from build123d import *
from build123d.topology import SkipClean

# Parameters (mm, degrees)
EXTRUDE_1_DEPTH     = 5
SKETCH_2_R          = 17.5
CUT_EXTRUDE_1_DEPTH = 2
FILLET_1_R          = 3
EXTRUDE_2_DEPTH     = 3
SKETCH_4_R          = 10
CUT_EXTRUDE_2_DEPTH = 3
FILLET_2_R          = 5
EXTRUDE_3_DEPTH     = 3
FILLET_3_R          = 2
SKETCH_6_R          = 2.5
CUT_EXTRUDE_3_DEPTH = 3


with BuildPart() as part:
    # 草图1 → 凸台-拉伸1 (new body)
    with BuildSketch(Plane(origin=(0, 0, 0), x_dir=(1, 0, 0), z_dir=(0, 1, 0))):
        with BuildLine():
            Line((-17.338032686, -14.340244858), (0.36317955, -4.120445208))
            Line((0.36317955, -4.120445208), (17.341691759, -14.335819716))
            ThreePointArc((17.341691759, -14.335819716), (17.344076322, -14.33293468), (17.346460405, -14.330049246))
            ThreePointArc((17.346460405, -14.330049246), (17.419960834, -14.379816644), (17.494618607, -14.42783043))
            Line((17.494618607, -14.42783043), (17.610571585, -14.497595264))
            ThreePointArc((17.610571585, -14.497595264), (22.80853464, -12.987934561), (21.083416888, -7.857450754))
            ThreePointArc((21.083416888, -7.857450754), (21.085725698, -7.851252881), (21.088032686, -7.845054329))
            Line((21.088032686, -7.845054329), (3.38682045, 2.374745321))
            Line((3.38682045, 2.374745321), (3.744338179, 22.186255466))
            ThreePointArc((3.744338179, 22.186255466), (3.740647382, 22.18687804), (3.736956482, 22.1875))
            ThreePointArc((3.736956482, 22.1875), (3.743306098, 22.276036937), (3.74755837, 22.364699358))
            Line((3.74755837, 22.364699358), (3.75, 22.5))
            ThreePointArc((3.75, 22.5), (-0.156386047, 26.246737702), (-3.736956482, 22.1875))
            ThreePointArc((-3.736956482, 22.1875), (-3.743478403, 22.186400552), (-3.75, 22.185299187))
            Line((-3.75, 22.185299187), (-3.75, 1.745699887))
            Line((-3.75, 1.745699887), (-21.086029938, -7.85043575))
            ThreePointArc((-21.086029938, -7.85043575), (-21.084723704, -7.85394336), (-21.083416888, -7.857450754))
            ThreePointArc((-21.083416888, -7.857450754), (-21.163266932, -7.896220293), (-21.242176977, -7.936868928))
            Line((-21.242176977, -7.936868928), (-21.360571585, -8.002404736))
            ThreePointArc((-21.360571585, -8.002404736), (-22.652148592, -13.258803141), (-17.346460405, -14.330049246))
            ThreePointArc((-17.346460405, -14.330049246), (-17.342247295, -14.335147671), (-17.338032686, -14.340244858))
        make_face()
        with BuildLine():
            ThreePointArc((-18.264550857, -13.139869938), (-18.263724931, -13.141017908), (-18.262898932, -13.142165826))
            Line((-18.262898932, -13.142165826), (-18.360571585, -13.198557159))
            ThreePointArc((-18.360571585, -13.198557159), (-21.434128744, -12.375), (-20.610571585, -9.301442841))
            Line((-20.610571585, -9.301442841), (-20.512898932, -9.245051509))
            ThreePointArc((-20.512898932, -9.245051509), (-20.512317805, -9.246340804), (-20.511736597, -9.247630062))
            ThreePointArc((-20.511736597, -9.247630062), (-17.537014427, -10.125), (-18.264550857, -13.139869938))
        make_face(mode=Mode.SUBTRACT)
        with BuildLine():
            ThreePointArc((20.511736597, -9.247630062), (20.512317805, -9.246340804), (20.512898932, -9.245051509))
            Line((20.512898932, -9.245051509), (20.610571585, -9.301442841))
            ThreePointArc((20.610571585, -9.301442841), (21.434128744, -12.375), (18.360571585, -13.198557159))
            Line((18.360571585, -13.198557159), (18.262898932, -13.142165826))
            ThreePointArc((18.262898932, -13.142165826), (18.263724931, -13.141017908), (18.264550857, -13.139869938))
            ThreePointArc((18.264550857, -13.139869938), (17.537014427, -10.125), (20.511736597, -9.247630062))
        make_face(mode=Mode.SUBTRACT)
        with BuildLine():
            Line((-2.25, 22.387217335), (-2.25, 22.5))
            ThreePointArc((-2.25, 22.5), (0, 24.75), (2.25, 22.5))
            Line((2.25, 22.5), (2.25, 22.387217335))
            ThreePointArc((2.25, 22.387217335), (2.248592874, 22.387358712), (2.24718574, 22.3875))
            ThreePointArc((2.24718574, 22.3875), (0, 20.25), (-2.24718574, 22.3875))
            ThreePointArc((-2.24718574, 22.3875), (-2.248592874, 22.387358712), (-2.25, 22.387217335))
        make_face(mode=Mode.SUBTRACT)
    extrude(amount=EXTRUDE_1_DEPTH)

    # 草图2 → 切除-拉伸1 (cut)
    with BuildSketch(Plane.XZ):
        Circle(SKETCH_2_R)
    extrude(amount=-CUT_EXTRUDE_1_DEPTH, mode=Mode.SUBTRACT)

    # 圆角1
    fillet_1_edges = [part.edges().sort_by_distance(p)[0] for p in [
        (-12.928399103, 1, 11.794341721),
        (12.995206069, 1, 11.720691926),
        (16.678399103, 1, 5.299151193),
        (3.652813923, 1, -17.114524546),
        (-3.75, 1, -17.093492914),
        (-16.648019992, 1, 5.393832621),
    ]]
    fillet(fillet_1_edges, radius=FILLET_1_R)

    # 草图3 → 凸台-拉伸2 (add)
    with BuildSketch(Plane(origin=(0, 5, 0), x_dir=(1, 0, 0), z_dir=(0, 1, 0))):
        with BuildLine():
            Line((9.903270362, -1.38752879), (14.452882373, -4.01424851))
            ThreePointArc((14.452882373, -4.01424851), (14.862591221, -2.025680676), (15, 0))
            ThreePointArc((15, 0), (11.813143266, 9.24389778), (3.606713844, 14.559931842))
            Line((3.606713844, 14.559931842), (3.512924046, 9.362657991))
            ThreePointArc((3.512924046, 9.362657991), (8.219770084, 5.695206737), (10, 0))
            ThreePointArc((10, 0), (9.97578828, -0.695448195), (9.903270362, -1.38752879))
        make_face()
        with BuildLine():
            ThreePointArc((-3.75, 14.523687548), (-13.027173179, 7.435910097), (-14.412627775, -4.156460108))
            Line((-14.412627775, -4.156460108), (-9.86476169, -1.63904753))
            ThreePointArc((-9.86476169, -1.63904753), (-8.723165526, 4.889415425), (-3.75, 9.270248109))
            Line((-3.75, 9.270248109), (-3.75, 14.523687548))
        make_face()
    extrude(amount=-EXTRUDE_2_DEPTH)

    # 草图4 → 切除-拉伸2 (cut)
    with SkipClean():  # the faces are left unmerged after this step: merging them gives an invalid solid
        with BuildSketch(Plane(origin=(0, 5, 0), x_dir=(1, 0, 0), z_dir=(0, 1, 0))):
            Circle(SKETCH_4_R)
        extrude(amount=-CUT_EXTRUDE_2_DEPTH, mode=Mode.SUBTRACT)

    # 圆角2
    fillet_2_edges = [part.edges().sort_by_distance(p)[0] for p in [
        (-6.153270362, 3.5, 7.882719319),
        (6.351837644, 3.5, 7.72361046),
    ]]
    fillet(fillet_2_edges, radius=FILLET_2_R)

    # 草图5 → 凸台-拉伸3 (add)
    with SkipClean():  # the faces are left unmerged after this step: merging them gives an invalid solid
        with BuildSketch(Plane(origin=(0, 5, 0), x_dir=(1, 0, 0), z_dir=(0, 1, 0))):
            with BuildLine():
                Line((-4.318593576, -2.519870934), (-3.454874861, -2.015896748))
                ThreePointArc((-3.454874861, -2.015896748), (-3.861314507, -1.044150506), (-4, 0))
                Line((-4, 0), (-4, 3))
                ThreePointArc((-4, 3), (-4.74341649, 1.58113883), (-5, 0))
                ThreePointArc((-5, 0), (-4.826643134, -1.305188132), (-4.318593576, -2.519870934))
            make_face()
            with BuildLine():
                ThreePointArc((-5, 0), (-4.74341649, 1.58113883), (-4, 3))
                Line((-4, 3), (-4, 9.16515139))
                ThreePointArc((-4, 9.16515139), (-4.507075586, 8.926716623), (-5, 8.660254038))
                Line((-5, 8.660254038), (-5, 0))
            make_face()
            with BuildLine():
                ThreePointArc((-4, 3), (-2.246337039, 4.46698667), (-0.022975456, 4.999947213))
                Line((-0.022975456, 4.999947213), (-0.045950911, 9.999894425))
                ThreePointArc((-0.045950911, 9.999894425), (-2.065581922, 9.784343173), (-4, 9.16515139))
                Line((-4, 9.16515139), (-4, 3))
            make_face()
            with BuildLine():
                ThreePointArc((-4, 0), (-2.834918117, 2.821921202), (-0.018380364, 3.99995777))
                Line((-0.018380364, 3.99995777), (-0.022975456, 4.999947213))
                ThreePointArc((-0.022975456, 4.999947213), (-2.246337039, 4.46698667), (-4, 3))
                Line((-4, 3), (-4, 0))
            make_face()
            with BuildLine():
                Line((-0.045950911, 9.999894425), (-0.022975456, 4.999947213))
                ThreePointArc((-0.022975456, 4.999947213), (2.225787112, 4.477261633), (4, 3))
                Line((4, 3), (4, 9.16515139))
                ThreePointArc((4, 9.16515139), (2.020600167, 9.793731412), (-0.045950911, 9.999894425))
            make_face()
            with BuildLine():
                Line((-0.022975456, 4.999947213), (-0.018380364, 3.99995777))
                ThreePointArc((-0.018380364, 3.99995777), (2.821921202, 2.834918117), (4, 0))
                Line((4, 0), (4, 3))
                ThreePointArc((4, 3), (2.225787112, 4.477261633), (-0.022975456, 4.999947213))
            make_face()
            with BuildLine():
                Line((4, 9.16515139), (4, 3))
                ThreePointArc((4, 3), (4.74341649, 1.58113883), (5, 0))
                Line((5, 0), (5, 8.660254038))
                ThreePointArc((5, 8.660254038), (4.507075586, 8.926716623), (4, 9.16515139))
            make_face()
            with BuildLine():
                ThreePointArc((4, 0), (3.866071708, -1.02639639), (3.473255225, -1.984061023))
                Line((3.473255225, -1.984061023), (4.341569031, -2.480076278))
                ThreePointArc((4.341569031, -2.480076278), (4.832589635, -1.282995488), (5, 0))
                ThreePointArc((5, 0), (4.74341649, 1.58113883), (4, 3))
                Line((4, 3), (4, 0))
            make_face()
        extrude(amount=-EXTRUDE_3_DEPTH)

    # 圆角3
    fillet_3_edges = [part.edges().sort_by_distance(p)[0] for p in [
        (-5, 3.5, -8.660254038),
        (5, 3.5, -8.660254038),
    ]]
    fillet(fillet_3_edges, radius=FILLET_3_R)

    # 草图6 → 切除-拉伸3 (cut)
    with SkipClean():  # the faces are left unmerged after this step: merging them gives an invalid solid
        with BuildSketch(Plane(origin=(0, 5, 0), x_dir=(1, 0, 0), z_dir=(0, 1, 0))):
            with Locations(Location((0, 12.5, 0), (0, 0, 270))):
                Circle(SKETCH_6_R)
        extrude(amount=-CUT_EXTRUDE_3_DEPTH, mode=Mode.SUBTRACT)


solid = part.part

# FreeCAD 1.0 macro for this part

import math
import FreeCAD as App
import Part
import Sketcher
Q = App.Units.Quantity


def edges_at(feature, points):
    """Names of the edges that pass closest to the given points."""
    edges = feature.Shape.Edges
    near = lambda p: min(range(len(edges)), key=lambda i: edges[i].distToShape(Part.Vertex(*p))[0])
    return sorted({f"Edge{near(p) + 1}" for p in points})

doc = App.newDocument("Part")
params = doc.addObject("Spreadsheet::Sheet", "Params")
for row, (alias, value) in enumerate([
    ("sketch1_radius", "3.75 mm"),
    ("sketch1_radius2", "3.75 mm"),
    ("sketch1_radius3", "3.750001 mm"),
    ("sketch1_radius4", "3.75 mm"),
    ("sketch1_radius5", "3.75 mm"),
    ("pad1_length", "5 mm"),
    ("sketch2_diameter", "35 mm"),
    ("pocket1_length", "2 mm"),
    ("fillet_radius", "3 mm"),
    ("sketch3_radius", "15 mm"),
    ("sketch3_radius2", "10 mm"),
    ("pad2_length", "3 mm"),
    ("sketch4_diameter", "20 mm"),
    ("pocket2_length", "3 mm"),
    ("fillet2_radius", "5 mm"),
    ("sketch5_radius", "4 mm"),
    ("sketch5_radius2", "5 mm"),
    ("sketch5_radius3", "10 mm"),
    ("pad3_length", "3 mm"),
    ("fillet3_radius", "2 mm"),
    ("sketch6_diameter", "5 mm"),
    ("pocket3_length", "3 mm"),
], start=1):
    params.set(f"A{row}", alias)
    params.set(f"B{row}", "=" + value)
    params.setAlias(f"B{row}", alias)

body = doc.addObject("PartDesign::Body", "Body")

# Sketch on XZ plane
sketch1 = doc.addObject("Sketcher::SketchObject", "Sketch")
body.addObject(sketch1)
sketch1.AttachmentSupport = (doc.XZ_Plane, [""])
sketch1.MapMode = "FlatFace"
sketch1.addGeometry([
    Part.LineSegment(App.Vector(-17.338033, 14.340245, 0), App.Vector(0.36318, 4.120445, 0)),  # 0
    Part.LineSegment(App.Vector(0.36318, 4.120445, 0), App.Vector(17.341692, 14.33582, 0)),  # 1
    Part.ArcOfCircle(Part.Circle(App.Vector(0.024832, 0.020522, 0), App.Vector(0, 0, 1), 22.467785), math.radians(39.560367), math.radians(39.579457)),  # 2
    Part.ArcOfCircle(Part.Circle(App.Vector(19.485572, 11.25, 0), App.Vector(0, 0, 1), 3.75), math.radians(122.067691), math.radians(124.780192)),  # 3
    Part.LineSegment(App.Vector(17.494619, 14.42783, 0), App.Vector(17.610572, 14.497595, 0)),  # 4
    Part.ArcOfCircle(Part.Circle(App.Vector(19.485572, 11.25, 0), App.Vector(0, 0, 1), 3.75), math.radians(-64.780192), math.radians(120)),  # 5
    Part.ArcOfCircle(Part.Circle(App.Vector(0.002388, 0.000891, 0), App.Vector(0, 0, 1), 22.497451), math.radians(20.405927), math.radians(20.439615)),  # 6
    Part.LineSegment(App.Vector(21.088033, 7.845054, 0), App.Vector(3.38682, -2.374745, 0)),  # 7
    Part.LineSegment(App.Vector(3.38682, -2.374745, 0), App.Vector(3.744338, -22.186255, 0)),  # 8
    Part.ArcOfCircle(Part.Circle(App.Vector(-0.000413, 0.002454, 0), App.Vector(0, 0, 1), 22.502488), math.radians(-80.439616), math.radians(-80.420555)),  # 9
    Part.ArcOfCircle(Part.Circle(App.Vector(-0.000001, -22.5, 0), App.Vector(0, 0, 1), 3.750001), math.radians(2.067691), math.radians(4.780192)),  # 10
    Part.LineSegment(App.Vector(3.747558, -22.364699, 0), App.Vector(3.75, -22.5, 0)),  # 11
    Part.ArcOfCircle(Part.Circle(App.Vector(0, -22.5, 0), App.Vector(0, 0, 1), 3.75), math.radians(175.219808), math.radians(360)),  # 12
    Part.ArcOfCircle(Part.Circle(App.Vector(0.000001, 0.00001, 0), App.Vector(0, 0, 1), 22.50001), math.radians(-99.594066), math.radians(-99.560382)),  # 13
    Part.LineSegment(App.Vector(-3.75, -22.185299, 0), App.Vector(-3.75, -1.7457, 0)),  # 14
    Part.LineSegment(App.Vector(-3.75, -1.7457, 0), App.Vector(-21.08603, 7.850436, 0)),  # 15
    Part.ArcOfCircle(Part.Circle(App.Vector(0.063124, -0.023513, 0), App.Vector(0, 0, 1), 22.567361), math.radians(159.560414), math.radians(159.57942)),  # 16
    Part.ArcOfCircle(Part.Circle(App.Vector(-19.485571, 11.25, 0), App.Vector(0, 0, 1), 3.75), math.radians(-117.932309), math.radians(-115.219808)),  # 17
    Part.LineSegment(App.Vector(-21.242177, 7.936869, 0), App.Vector(-21.360572, 8.002405, 0)),  # 18
    Part.ArcOfCircle(Part.Circle(App.Vector(-19.485572, 11.25, 0), App.Vector(0, 0, 1), 3.75), math.radians(55.219808), math.radians(240)),  # 19
    Part.ArcOfCircle(Part.Circle(App.Vector(0.000515, -0.000424, 0), App.Vector(0, 0, 1), 22.500667), math.radians(140.405935), math.radians(140.439619)),  # 20
    Part.ArcOfCircle(Part.Circle(App.Vector(-19.485572, 11.25, 0), App.Vector(0, 0, 1), 2.25), math.radians(-117.134016), math.radians(57.134016)),  # 21
    Part.ArcOfCircle(Part.Circle(App.Vector(-0.150299, 0.108143, 0), App.Vector(0, 0, 1), 22.314838), math.radians(144.260801), math.radians(144.268063)),  # 22
    Part.LineSegment(App.Vector(-18.262899, 13.142166, 0), App.Vector(-18.360572, 13.198557, 0)),  # 23
    Part.ArcOfCircle(Part.Circle(App.Vector(-19.485572, 11.25, 0), App.Vector(0, 0, 1), 2.25), math.radians(60), math.radians(240)),  # 24
    Part.LineSegment(App.Vector(-20.610572, 9.301443, 0), App.Vector(-20.512899, 9.245052, 0)),  # 25
    Part.ArcOfCircle(Part.Circle(App.Vector(-0.03709, 0.016717, 0), App.Vector(0, 0, 1), 22.459317), math.radians(155.731957), math.radians(155.739172)),  # 26
    Part.ArcOfCircle(Part.Circle(App.Vector(19.485572, 11.25, 0), App.Vector(0, 0, 1), 2.25), math.radians(122.865984), math.radians(297.134016)),  # 27
    Part.ArcOfCircle(Part.Circle(App.Vector(0.03709, 0.016717, 0), App.Vector(0, 0, 1), 22.459317), math.radians(24.260828), math.radians(24.268043)),  # 28
    Part.LineSegment(App.Vector(20.512899, 9.245052, 0), App.Vector(20.610572, 9.301443, 0)),  # 29
    Part.ArcOfCircle(Part.Circle(App.Vector(19.485572, 11.25, 0), App.Vector(0, 0, 1), 2.25), math.radians(-60), math.radians(120)),  # 30
    Part.LineSegment(App.Vector(18.360572, 13.198557, 0), App.Vector(18.262899, 13.142166, 0)),  # 31
    Part.ArcOfCircle(Part.Circle(App.Vector(0.150299, 0.108143, 0), App.Vector(0, 0, 1), 22.314838), math.radians(35.731937), math.radians(35.739199)),  # 32
    Part.ArcOfCircle(Part.Circle(App.Vector(-0.011716, -0.116634, 0), App.Vector(0, 0, 1), 22.382779), math.radians(-95.739187), math.radians(-95.731947)),  # 33
    Part.LineSegment(App.Vector(-2.25, -22.387217, 0), App.Vector(-2.25, -22.5, 0)),  # 34
    Part.ArcOfCircle(Part.Circle(App.Vector(0, -22.5, 0), App.Vector(0, 0, 1), 2.25), math.radians(180), math.radians(360)),  # 35
    Part.LineSegment(App.Vector(2.25, -22.5, 0), App.Vector(2.25, -22.387217, 0)),  # 36
    Part.ArcOfCircle(Part.Circle(App.Vector(0.011715, -0.116633, 0), App.Vector(0, 0, 1), 22.38278), math.radians(-84.268053), math.radians(-84.260813)),  # 37
    Part.ArcOfCircle(Part.Circle(App.Vector(0, -22.5, 0), App.Vector(0, 0, 1), 2.25), math.radians(2.865984), math.radians(177.134016)),  # 38
], False)
sketch1.addConstraint([
    Sketcher.Constraint("Coincident", 0, 2, 1, 1),
    Sketcher.Constraint("Coincident", 1, 2, 2, 2),
    Sketcher.Constraint("Coincident", 2, 1, 3, 2),
    Sketcher.Constraint("Coincident", 3, 1, 4, 1),
    Sketcher.Constraint("Coincident", 4, 2, 5, 2),
    Sketcher.Constraint("Coincident", 5, 1, 6, 2),
    Sketcher.Constraint("Coincident", 6, 1, 7, 1),
    Sketcher.Constraint("Coincident", 7, 2, 8, 1),
    Sketcher.Constraint("Coincident", 8, 2, 9, 2),
    Sketcher.Constraint("Coincident", 9, 1, 10, 2),
    Sketcher.Constraint("Coincident", 10, 1, 11, 1),
    Sketcher.Constraint("Coincident", 11, 2, 12, 2),
    Sketcher.Constraint("Coincident", 12, 1, 13, 2),
    Sketcher.Constraint("Coincident", 13, 1, 14, 1),
    Sketcher.Constraint("Coincident", 14, 2, 15, 1),
    Sketcher.Constraint("Coincident", 15, 2, 16, 2),
    Sketcher.Constraint("Coincident", 16, 1, 17, 2),
    Sketcher.Constraint("Coincident", 17, 1, 18, 1),
    Sketcher.Constraint("Coincident", 18, 2, 19, 2),
    Sketcher.Constraint("Coincident", 19, 1, 20, 2),
    Sketcher.Constraint("Coincident", 20, 1, 0, 1),
    Sketcher.Constraint("Coincident", 21, 2, 22, 2),
    Sketcher.Constraint("Coincident", 22, 1, 23, 1),
    Sketcher.Constraint("Coincident", 23, 2, 24, 1),
    Sketcher.Constraint("Coincident", 24, 2, 25, 1),
    Sketcher.Constraint("Coincident", 25, 2, 26, 2),
    Sketcher.Constraint("Coincident", 26, 1, 21, 1),
    Sketcher.Constraint("Coincident", 27, 2, 28, 2),
    Sketcher.Constraint("Coincident", 28, 1, 29, 1),
    Sketcher.Constraint("Coincident", 29, 2, 30, 1),
    Sketcher.Constraint("Coincident", 30, 2, 31, 1),
    Sketcher.Constraint("Coincident", 31, 2, 32, 2),
    Sketcher.Constraint("Coincident", 32, 1, 27, 1),
    Sketcher.Constraint("Coincident", 33, 1, 34, 1),
    Sketcher.Constraint("Coincident", 34, 2, 35, 1),
    Sketcher.Constraint("Coincident", 35, 2, 36, 1),
    Sketcher.Constraint("Coincident", 36, 2, 37, 2),
    Sketcher.Constraint("Coincident", 37, 1, 38, 1),
    Sketcher.Constraint("Coincident", 38, 2, 33, 2),
    Sketcher.Constraint("Vertical", 14),
    Sketcher.Constraint("Vertical", 34),
    Sketcher.Constraint("Vertical", 36),
    Sketcher.Constraint("Coincident", 13, 3, -1, 1),
    Sketcher.Constraint("Coincident", 5, 3, 3, 3),
    Sketcher.Constraint("Coincident", 12, 3, 10, 3),
    Sketcher.Constraint("Coincident", 19, 3, 17, 3),
    Sketcher.Constraint("Coincident", 21, 3, 17, 3),
    Sketcher.Constraint("Coincident", 24, 3, 17, 3),
    Sketcher.Constraint("Coincident", 27, 3, 3, 3),
    Sketcher.Constraint("Coincident", 30, 3, 3, 3),
    Sketcher.Constraint("Coincident", 35, 3, 10, 3),
    Sketcher.Constraint("Coincident", 38, 3, 10, 3),
    Sketcher.Constraint("PointOnObject", 10, 3, -2),
    Sketcher.Constraint("Radius", 3, 3.75),
    Sketcher.Constraint("Radius", 5, 3.75),
    Sketcher.Constraint("Radius", 10, 3.750001),
    Sketcher.Constraint("Radius", 12, 3.75),
    Sketcher.Constraint("Radius", 17, 3.75),
    Sketcher.Constraint("Radius", 19, 3.75),
    Sketcher.Constraint("Radius", 21, 2.25),
    Sketcher.Constraint("Radius", 24, 2.25),
    Sketcher.Constraint("Radius", 27, 2.25),
    Sketcher.Constraint("Radius", 30, 2.25),
    Sketcher.Constraint("Radius", 35, 2.25),
    Sketcher.Constraint("Radius", 38, 2.25),
    Sketcher.Constraint("DistanceY", 10, 3, -1, 1, 22.5),
    Sketcher.Constraint("DistanceY", 11, 2, -1, 1, 22.5),
    Sketcher.Constraint("DistanceY", 34, 2, -1, 1, 22.5),
    Sketcher.Constraint("DistanceY", 35, 2, -1, 1, 22.5),
    Sketcher.Constraint("DistanceY", -1, 1, 3, 3, 11.25),
    Sketcher.Constraint("DistanceY", -1, 1, 17, 3, 11.25),
    Sketcher.Constraint("DistanceX", 13, 1, -1, 1, 3.75),
    Sketcher.Constraint("Radius", 6, 22.497451),
    Sketcher.Constraint("Radius", 9, 22.502488),
    Sketcher.Constraint("Radius", 13, 22.50001),
    Sketcher.Constraint("Radius", 16, 22.567361),
    Sketcher.Constraint("Radius", 22, 22.314838),
    Sketcher.Constraint("Radius", 32, 22.314838),
    Sketcher.Constraint("Radius", 33, 22.382779),
    Sketcher.Constraint("Radius", 37, 22.38278),
    Sketcher.Constraint("DistanceY", 14, 1, 14, 2, 20.439599),
    Sketcher.Constraint("Radius", 2, 22.467785),
    Sketcher.Constraint("Radius", 20, 22.500667),
    Sketcher.Constraint("Radius", 26, 22.459317),
    Sketcher.Constraint("Radius", 28, 22.459317),
    Sketcher.Constraint("Distance", 0, 20.439599),
    Sketcher.Constraint("Distance", 7, 20.439599),
    Sketcher.Constraint("DistanceX", 22, 3, -1, 1, 0.150299),
    Sketcher.Constraint("DistanceX", -1, 1, 32, 3, 0.150299),
    Sketcher.Constraint("DistanceY", 9, 1, -1, 1, 22.1875),
    Sketcher.Constraint("DistanceY", 10, 1, -1, 1, 22.364699),
    Sketcher.Constraint("DistanceX", 22, 1, -1, 1, 18.262899),
    Sketcher.Constraint("DistanceX", 25, 2, -1, 1, 20.512899),
    Sketcher.Constraint("DistanceX", -1, 1, 28, 1, 20.512899),
    Sketcher.Constraint("DistanceX", -1, 1, 31, 2, 18.262899),
    Sketcher.Constraint("DistanceY", 37, 1, -1, 1, 22.3875),
    Sketcher.Constraint("DistanceY", 38, 2, -1, 1, 22.3875),
    Sketcher.Constraint("DistanceX", -1, 1, 2, 3, 0.024832),
    Sketcher.Constraint("DistanceX", -1, 1, 3, 3, 19.485572),
    Sketcher.Constraint("DistanceX", -1, 1, 6, 3, 0.002388),
    Sketcher.Constraint("DistanceY", -1, 1, 6, 3, 0.000891),
    Sketcher.Constraint("DistanceX", 17, 3, -1, 1, 19.485571),
    Sketcher.Constraint("DistanceX", 26, 3, -1, 1, 0.03709),
    Sketcher.Constraint("DistanceX", -1, 1, 28, 3, 0.03709),
    Sketcher.Constraint("DistanceX", -1, 1, 0, 2, 0.36318),
    Sketcher.Constraint("DistanceX", -1, 1, 1, 2, 17.341692),
    Sketcher.Constraint("DistanceY", -1, 1, 1, 2, 14.33582),
    Sketcher.Constraint("DistanceX", -1, 1, 3, 1, 17.494619),
    Sketcher.Constraint("DistanceX", -1, 1, 4, 2, 17.610572),
    Sketcher.Constraint("DistanceX", -1, 1, 7, 2, 3.38682),
    Sketcher.Constraint("DistanceX", -1, 1, 8, 2, 3.744338),
    Sketcher.Constraint("DistanceX", 15, 2, -1, 1, 21.08603),
    Sketcher.Constraint("DistanceY", -1, 1, 16, 1, 7.857451),
    Sketcher.Constraint("DistanceY", -1, 1, 17, 1, 7.936869),
    Sketcher.Constraint("DistanceX", 18, 2, -1, 1, 21.360572),
    Sketcher.Constraint("DistanceX", 19, 1, -1, 1, 17.34646),
    Sketcher.Constraint("DistanceX", 21, 2, -1, 1, 18.264551),
    Sketcher.Constraint("DistanceX", 23, 2, -1, 1, 18.360572),
    Sketcher.Constraint("DistanceX", 24, 2, -1, 1, 20.610572),
    Sketcher.Constraint("DistanceY", -1, 1, 25, 2, 9.245052),
    Sketcher.Constraint("DistanceY", -1, 1, 27, 2, 9.24763),
    Sketcher.Constraint("DistanceX", -1, 1, 29, 2, 20.610572),
    Sketcher.Constraint("DistanceX", -1, 1, 30, 2, 18.360572),
    Sketcher.Constraint("DistanceX", -1, 1, 32, 1, 18.264551),
    Sketcher.Constraint("Distance", 1, 19.814736),
    Sketcher.Constraint("Distance", 8, 19.814736),
    Sketcher.Constraint("DistanceX", 9, 3, -1, 1, 0.000413),
    Sketcher.Constraint("DistanceX", -1, 1, 16, 3, 0.063124),
    Sketcher.Constraint("DistanceX", -1, 1, 20, 3, 0.000515),
    Sketcher.Constraint("DistanceX", 33, 3, -1, 1, 0.011716),
    Sketcher.Constraint("DistanceX", -1, 1, 37, 3, 0.011715),
])
sketch1.setExpression("Constraints[53]", "Params.sketch1_radius")
sketch1.setExpression("Constraints[54]", "Params.sketch1_radius2")
sketch1.setExpression("Constraints[55]", "Params.sketch1_radius3")
sketch1.setExpression("Constraints[56]", "Params.sketch1_radius4")
sketch1.setExpression("Constraints[57]", "Params.sketch1_radius5")
pad1 = doc.addObject("PartDesign::Pad", "Pad")
body.addObject(pad1)
pad1.Profile = sketch1
pad1.setExpression("Length", "Params.pad1_length")
pad1.Reversed = True

# Sketch on XZ plane
sketch2 = doc.addObject("Sketcher::SketchObject", "Sketch001")
body.addObject(sketch2)
sketch2.AttachmentSupport = (doc.XZ_Plane, [""])
sketch2.MapMode = "FlatFace"
sketch2.addGeometry(Part.Circle(App.Vector(0, 0, 0), App.Vector(0, 0, 1), 17.5), False)
sketch2.addConstraint([
    Sketcher.Constraint("Coincident", 0, 3, -1, 1),
    Sketcher.Constraint("Diameter", 0, 35.0),
])
sketch2.setExpression("Constraints[1]", "Params.sketch2_diameter")
pocket1 = doc.addObject("PartDesign::Pocket", "Pocket")
body.addObject(pocket1)
pocket1.Profile = sketch2
pocket1.setExpression("Length", "Params.pocket1_length")
doc.recompute()

fillet = doc.addObject("PartDesign::Fillet", "Fillet")
body.addObject(fillet)
fillet.Base = (pocket1, edges_at(pocket1, [
    (-12.928, 1, 11.794),
    (12.995, 1, 11.721),
    (16.678, 1, 5.299),
    (3.653, 1, -17.115),
    (-3.75, 1, -17.093),
    (-16.648, 1, 5.394),
]))
fillet.setExpression("Radius", "Params.fillet_radius")

# Sketch on XZ plane
sketch3 = doc.addObject("Sketcher::SketchObject", "Sketch002")
body.addObject(sketch3)
sketch3.AttachmentSupport = (doc.XZ_Plane, [""])
sketch3.MapMode = "FlatFace"
sketch3.AttachmentOffset = App.Placement(App.Vector(0, 0, -5), App.Rotation())
sketch3.addGeometry([
    Part.LineSegment(App.Vector(9.90327, 1.387529, 0), App.Vector(14.452882, 4.014249, 0)),  # 0
    Part.ArcOfCircle(Part.Circle(App.Vector(0, 0, 0), App.Vector(0, 0, 1), 15), math.radians(0), math.radians(15.522488)),  # 1
    Part.ArcOfCircle(Part.Circle(App.Vector(0, 0, 0), App.Vector(0, 0, 1), 15), math.radians(-76.087041), math.radians(0)),  # 2
    Part.LineSegment(App.Vector(3.606714, -14.559932, 0), App.Vector(3.512924, -9.362658, 0)),  # 3
    Part.ArcOfCircle(Part.Circle(App.Vector(0, 0, 0), App.Vector(0, 0, 1), 10), math.radians(-69.433615), math.radians(0)),  # 4
    Part.ArcOfCircle(Part.Circle(App.Vector(0, 0, 0), App.Vector(0, 0, 1), 10), math.radians(0), math.radians(7.975687)),  # 5
    Part.ArcOfCircle(Part.Circle(App.Vector(0, 0, 0), App.Vector(0, 0, 1), 15), math.radians(163.912959), math.radians(255.522488)),  # 6
    Part.LineSegment(App.Vector(-14.412628, 4.15646, 0), App.Vector(-9.864762, 1.639048, 0)),  # 7
    Part.ArcOfCircle(Part.Circle(App.Vector(0, 0, 0), App.Vector(0, 0, 1), 10), math.radians(170.566385), math.radians(247.975687)),  # 8
    Part.LineSegment(App.Vector(-3.75, -9.270248, 0), App.Vector(-3.75, -14.523688, 0)),  # 9
], False)
sketch3.addConstraint([
    Sketcher.Constraint("Coincident", 0, 2, 1, 2),
    Sketcher.Constraint("Tangent", 1, 1, 2, 2),
    Sketcher.Constraint("Coincident", 2, 1, 3, 1),
    Sketcher.Constraint("Coincident", 3, 2, 4, 1),
    Sketcher.Constraint("Tangent", 4, 2, 5, 1),
    Sketcher.Constraint("Coincident", 5, 2, 0, 1),
    Sketcher.Constraint("Coincident", 6, 1, 7, 1),
    Sketcher.Constraint("Coincident", 7, 2, 8, 1),
    Sketcher.Constraint("Coincident", 8, 2, 9, 1),
    Sketcher.Constraint("Coincident", 9, 2, 6, 2),
    Sketcher.Constraint("Vertical", 9),
    Sketcher.Constraint("Coincident", 1, 3, -1, 1),
    Sketcher.Constraint("Coincident", 4, 3, -1, 1),
    Sketcher.Constraint("Coincident", 6, 3, -1, 1),
    Sketcher.Constraint("Coincident", 8, 3, -1, 1),
    Sketcher.Constraint("Equal", 1, 2),
    Sketcher.Constraint("Equal", 4, 5),
    Sketcher.Constraint("Equal", 2, 6),
    Sketcher.Constraint("Equal", 5, 8),
    Sketcher.Constraint("PointOnObject", 1, 1, -1),
    Sketcher.Constraint("PointOnObject", 4, 2, -1),
    Sketcher.Constraint("Equal", 3, 7),
    Sketcher.Constraint("Radius", 1, 15.0),
    Sketcher.Constraint("Radius", 4, 10.0),
    Sketcher.Constraint("Angle", 0, Q("30 deg")),
    Sketcher.Constraint("DistanceX", 8, 2, -1, 1, 3.75),
    Sketcher.Constraint("Distance", 0, 5.253439),
    Sketcher.Constraint("Distance", 3, 5.19812),
    Sketcher.Constraint("DistanceY", 2, 1, -1, 1, 14.559932),
    Sketcher.Constraint("DistanceY", -1, 1, 6, 1, 4.15646),
])
sketch3.setExpression("Constraints[22]", "Params.sketch3_radius")
sketch3.setExpression("Constraints[23]", "Params.sketch3_radius2")
pad2 = doc.addObject("PartDesign::Pad", "Pad001")
body.addObject(pad2)
pad2.Profile = sketch3
pad2.setExpression("Length", "Params.pad2_length")

# Sketch on XZ plane
sketch4 = doc.addObject("Sketcher::SketchObject", "Sketch003")
body.addObject(sketch4)
sketch4.AttachmentSupport = (doc.XZ_Plane, [""])
sketch4.MapMode = "FlatFace"
sketch4.AttachmentOffset = App.Placement(App.Vector(0, 0, -5), App.Rotation())
sketch4.addGeometry(Part.Circle(App.Vector(0, 0, 0), App.Vector(0, 0, 1), 10), False)
sketch4.addConstraint([
    Sketcher.Constraint("Coincident", 0, 3, -1, 1),
    Sketcher.Constraint("Diameter", 0, 20.0),
])
sketch4.setExpression("Constraints[1]", "Params.sketch4_diameter")
pocket2 = doc.addObject("PartDesign::Pocket", "Pocket001")
body.addObject(pocket2)
pocket2.Profile = sketch4
pocket2.setExpression("Length", "Params.pocket2_length")
pocket2.Reversed = True
doc.recompute()

fillet2 = doc.addObject("PartDesign::Fillet", "Fillet001")
body.addObject(fillet2)
fillet2.Base = (pocket2, edges_at(pocket2, [(-6.153, 3.5, 7.883), (6.352, 3.5, 7.724)]))
fillet2.setExpression("Radius", "Params.fillet2_radius")

# Sketch on XZ plane
sketch5 = doc.addObject("Sketcher::SketchObject", "Sketch004")
body.addObject(sketch5)
sketch5.AttachmentSupport = (doc.XZ_Plane, [""])
sketch5.MapMode = "FlatFace"
sketch5.AttachmentOffset = App.Placement(App.Vector(0, 0, -5), App.Rotation())
sketch5.addGeometry([
    Part.LineSegment(App.Vector(-4.318594, 2.519871, 0), App.Vector(-3.454875, 2.015897, 0)),  # 0
    Part.ArcOfCircle(Part.Circle(App.Vector(0, 0, 0), App.Vector(0, 0, 1), 4), math.radians(149.73672), math.radians(180)),  # 1
    Part.LineSegment(App.Vector(-4, 0, 0), App.Vector(-4, -3, 0)),  # 2
    Part.ArcOfCircle(Part.Circle(App.Vector(0, 0, 0), App.Vector(0, 0, 1), 5), math.radians(-180), math.radians(-143.130102)),  # 3
    Part.ArcOfCircle(Part.Circle(App.Vector(0, 0, 0), App.Vector(0, 0, 1), 5), math.radians(149.73672), math.radians(180)),  # 4
    Part.ArcOfCircle(Part.Circle(App.Vector(0, 0, 0), App.Vector(0, 0, 1), 5), math.radians(-180), math.radians(-143.130102)),  # 5
    Part.LineSegment(App.Vector(-4, -3, 0), App.Vector(-4, -9.165151, 0)),  # 6
    Part.ArcOfCircle(Part.Circle(App.Vector(0, 0, 0), App.Vector(0, 0, 1), 10), math.radians(-120), math.radians(-113.578178)),  # 7
    Part.LineSegment(App.Vector(-5, -8.660254, 0), App.Vector(-5, 0, 0)),  # 8
    Part.ArcOfCircle(Part.Circle(App.Vector(0, 0, 0), App.Vector(0, 0, 1), 5), math.radians(-143.130102), math.radians(-90.26328)),  # 9
    Part.LineSegment(App.Vector(-0.022975, -4.999947, 0), App.Vector(-0.045951, -9.999894, 0)),  # 10
    Part.ArcOfCircle(Part.Circle(App.Vector(0, 0, 0), App.Vector(0, 0, 1), 10), math.radians(-113.578178), math.radians(-90.26328)),  # 11
    Part.LineSegment(App.Vector(-4, -9.165151, 0), App.Vector(-4, -3, 0)),  # 12
    Part.ArcOfCircle(Part.Circle(App.Vector(0, 0, 0), App.Vector(0, 0, 1), 4), math.radians(180), math.radians(269.73672)),  # 13
    Part.LineSegment(App.Vector(-0.01838, -3.999958, 0), App.Vector(-0.022975, -4.999947, 0)),  # 14
    Part.ArcOfCircle(Part.Circle(App.Vector(0, 0, 0), App.Vector(0, 0, 1), 5), math.radians(-143.130102), math.radians(-90.26328)),  # 15
    Part.LineSegment(App.Vector(-4, -3, 0), App.Vector(-4, 0, 0)),  # 16
    Part.LineSegment(App.Vector(-0.045951, -9.999894, 0), App.Vector(-0.022975, -4.999947, 0)),  # 17
    Part.ArcOfCircle(Part.Circle(App.Vector(0, 0, 0), App.Vector(0, 0, 1), 5), math.radians(-90.26328), math.radians(-36.869898)),  # 18
    Part.LineSegment(App.Vector(4, -3, 0), App.Vector(4, -9.165151, 0)),  # 19
    Part.ArcOfCircle(Part.Circle(App.Vector(0, 0, 0), App.Vector(0, 0, 1), 10), math.radians(-90.26328), math.radians(-66.421822)),  # 20
    Part.LineSegment(App.Vector(-0.022975, -4.999947, 0), App.Vector(-0.01838, -3.999958, 0)),  # 21
    Part.ArcOfCircle(Part.Circle(App.Vector(0, 0, 0), App.Vector(0, 0, 1), 4), math.radians(-90.26328), math.radians(0)),  # 22
    Part.LineSegment(App.Vector(4, 0, 0), App.Vector(4, -3, 0)),  # 23
    Part.ArcOfCircle(Part.Circle(App.Vector(0, 0, 0), App.Vector(0, 0, 1), 5), math.radians(-90.26328), math.radians(-36.869898)),  # 24
    Part.LineSegment(App.Vector(4, -9.165151, 0), App.Vector(4, -3, 0)),  # 25
    Part.ArcOfCircle(Part.Circle(App.Vector(0, 0, 0), App.Vector(0, 0, 1), 5), math.radians(-36.869898), math.radians(0)),  # 26
    Part.LineSegment(App.Vector(5, 0, 0), App.Vector(5, -8.660254, 0)),  # 27
    Part.ArcOfCircle(Part.Circle(App.Vector(0, 0, 0), App.Vector(0, 0, 1), 10), math.radians(-66.421822), math.radians(-60)),  # 28
    Part.ArcOfCircle(Part.Circle(App.Vector(0, 0, 0), App.Vector(0, 0, 1), 4), math.radians(0), math.radians(29.73672)),  # 29
    Part.LineSegment(App.Vector(3.473255, 1.984061, 0), App.Vector(4.341569, 2.480076, 0)),  # 30
    Part.ArcOfCircle(Part.Circle(App.Vector(0, 0, 0), App.Vector(0, 0, 1), 5), math.radians(0), math.radians(29.73672)),  # 31
    Part.ArcOfCircle(Part.Circle(App.Vector(0, 0, 0), App.Vector(0, 0, 1), 5), math.radians(-36.869898), math.radians(0)),  # 32
    Part.LineSegment(App.Vector(4, -3, 0), App.Vector(4, 0, 0)),  # 33
], False)
sketch5.addConstraint([
    Sketcher.Constraint("Coincident", 0, 2, 1, 1),
    Sketcher.Constraint("Tangent", 1, 2, 2, 1),
    Sketcher.Constraint("Coincident", 2, 2, 3, 2),
    Sketcher.Constraint("Tangent", 3, 1, 4, 2),
    Sketcher.Constraint("Coincident", 4, 1, 0, 1),
    Sketcher.Constraint("Coincident", 5, 2, 6, 1),
    Sketcher.Constraint("Coincident", 6, 2, 7, 2),
    Sketcher.Constraint("Coincident", 7, 1, 8, 1),
    Sketcher.Constraint("Tangent", 8, 2, 5, 1),
    Sketcher.Constraint("Coincident", 9, 2, 10, 1),
    Sketcher.Constraint("Coincident", 10, 2, 11, 2),
    Sketcher.Constraint("Coincident", 11, 1, 12, 1),
    Sketcher.Constraint("Coincident", 12, 2, 9, 1),
    Sketcher.Constraint("Coincident", 13, 2, 14, 1),
    Sketcher.Constraint("Coincident", 14, 2, 15, 2),
    Sketcher.Constraint("Coincident", 15, 1, 16, 1),
    Sketcher.Constraint("Tangent", 16, 2, 13, 1),
    Sketcher.Constraint("Coincident", 17, 2, 18, 1),
    Sketcher.Constraint("Coincident", 18, 2, 19, 1),
    Sketcher.Constraint("Coincident", 19, 2, 20, 2),
    Sketcher.Constraint("Coincident", 20, 1, 17, 1),
    Sketcher.Constraint("Coincident", 21, 2, 22, 1),
    Sketcher.Constraint("Tangent", 22, 2, 23, 1),
    Sketcher.Constraint("Coincident", 23, 2, 24, 2),
    Sketcher.Constraint("Coincident", 24, 1, 21, 1),
    Sketcher.Constraint("Coincident", 25, 2, 26, 1),
    Sketcher.Constraint("Tangent", 26, 2, 27, 1),
    Sketcher.Constraint("Coincident", 27, 2, 28, 2),
    Sketcher.Constraint("Coincident", 28, 1, 25, 1),
    Sketcher.Constraint("Coincident", 29, 2, 30, 1),
    Sketcher.Constraint("Coincident", 30, 2, 31, 2),
    Sketcher.Constraint("Tangent", 31, 1, 32, 2),
    Sketcher.Constraint("Coincident", 32, 1, 33, 1),
    Sketcher.Constraint("Tangent", 33, 2, 29, 1),
    Sketcher.Constraint("Vertical", 2),
    Sketcher.Constraint("Vertical", 6),
    Sketcher.Constraint("Vertical", 8),
    Sketcher.Constraint("Vertical", 12),
    Sketcher.Constraint("Vertical", 16),
    Sketcher.Constraint("Vertical", 19),
    Sketcher.Constraint("Vertical", 23),
    Sketcher.Constraint("Vertical", 25),
    Sketcher.Constraint("Vertical", 27),
    Sketcher.Constraint("Vertical", 33),
    Sketcher.Constraint("Coincident", 1, 3, -1, 1),
    Sketcher.Constraint("Coincident", 3, 3, -1, 1),
    Sketcher.Constraint("Coincident", 5, 3, -1, 1),
    Sketcher.Constraint("Coincident", 7, 3, -1, 1),
    Sketcher.Constraint("Coincident", 9, 3, -1, 1),
    Sketcher.Constraint("Coincident", 11, 3, -1, 1),
    Sketcher.Constraint("Coincident", 13, 3, -1, 1),
    Sketcher.Constraint("Coincident", 15, 3, -1, 1),
    Sketcher.Constraint("Coincident", 18, 3, -1, 1),
    Sketcher.Constraint("Coincident", 20, 3, -1, 1),
    Sketcher.Constraint("Coincident", 22, 3, -1, 1),
    Sketcher.Constraint("Coincident", 24, 3, -1, 1),
    Sketcher.Constraint("Coincident", 26, 3, -1, 1),
    Sketcher.Constraint("Coincident", 28, 3, -1, 1),
    Sketcher.Constraint("Coincident", 29, 3, -1, 1),
    Sketcher.Constraint("Coincident", 31, 3, -1, 1),
    Sketcher.Constraint("Coincident", 5, 2, 2, 2),
    Sketcher.Constraint("Coincident", 11, 1, 6, 2),
    Sketcher.Constraint("Coincident", 14, 2, 9, 2),
    Sketcher.Constraint("Coincident", 15, 1, 2, 2),
    Sketcher.Constraint("Coincident", 17, 2, 9, 2),
    Sketcher.Constraint("Coincident", 20, 1, 10, 2),
    Sketcher.Constraint("Coincident", 21, 2, 13, 2),
    Sketcher.Constraint("Coincident", 23, 2, 18, 2),
    Sketcher.Constraint("Coincident", 25, 2, 18, 2),
    Sketcher.Constraint("Coincident", 31, 1, 26, 2),
    Sketcher.Constraint("Coincident", 32, 1, 18, 2),
    Sketcher.Constraint("Equal", 3, 4),
    Sketcher.Constraint("Equal", 20, 28),
    Sketcher.Constraint("PointOnObject", 3, 1, -1),
    Sketcher.Constraint("Parallel", 10, 14),
    Sketcher.Constraint("Parallel", 17, 21),
    Sketcher.Constraint("Radius", 1, 4.0),
    Sketcher.Constraint("Radius", 3, 5.0),
    Sketcher.Constraint("Radius", 7, 10.0),
    Sketcher.Constraint("DistanceY", -1, 1, 4, 1, 2.519871),
    Sketcher.Constraint("DistanceX", 10, 2, -1, 1, 0.045951),
    Sketcher.Constraint("DistanceX", 13, 2, -1, 1, 0.01838),
    Sketcher.Constraint("DistanceY", -1, 1, 29, 2, 1.984061),
    Sketcher.Constraint("DistanceX", -1, 1, 30, 2, 4.341569),
    Sketcher.Constraint("DistanceX", 4, 1, 0, 2, 0.863719),
])
sketch5.setExpression("Constraints[76]", "Params.sketch5_radius")
sketch5.setExpression("Constraints[77]", "Params.sketch5_radius2")
sketch5.setExpression("Constraints[78]", "Params.sketch5_radius3")
pad3 = doc.addObject("PartDesign::Pad", "Pad002")
body.addObject(pad3)
pad3.Profile = sketch5
pad3.setExpression("Length", "Params.pad3_length")
doc.recompute()

fillet3 = doc.addObject("PartDesign::Fillet", "Fillet002")
body.addObject(fillet3)
fillet3.Base = (pad3, edges_at(pad3, [(-5, 3.5, -8.66), (5, 3.5, -8.66)]))
fillet3.setExpression("Radius", "Params.fillet3_radius")

# Sketch on XZ plane
sketch6 = doc.addObject("Sketcher::SketchObject", "Sketch005")
body.addObject(sketch6)
sketch6.AttachmentSupport = (doc.XZ_Plane, [""])
sketch6.MapMode = "FlatFace"
sketch6.AttachmentOffset = App.Placement(App.Vector(0, 0, -5), App.Rotation())
sketch6.addGeometry(Part.Circle(App.Vector(0, -12.5, 0), App.Vector(0, 0, 1), 2.5), False)
sketch6.addConstraint([
    Sketcher.Constraint("PointOnObject", 0, 3, -2),
    Sketcher.Constraint("Diameter", 0, 5.0),
    Sketcher.Constraint("DistanceY", 0, 3, -1, 1, 12.5),
])
sketch6.setExpression("Constraints[1]", "Params.sketch6_diameter")
pocket3 = doc.addObject("PartDesign::Pocket", "Pocket002")
body.addObject(pocket3)
pocket3.Profile = sketch6
pocket3.setExpression("Length", "Params.pocket3_length")
pocket3.Reversed = True

doc.recompute()
